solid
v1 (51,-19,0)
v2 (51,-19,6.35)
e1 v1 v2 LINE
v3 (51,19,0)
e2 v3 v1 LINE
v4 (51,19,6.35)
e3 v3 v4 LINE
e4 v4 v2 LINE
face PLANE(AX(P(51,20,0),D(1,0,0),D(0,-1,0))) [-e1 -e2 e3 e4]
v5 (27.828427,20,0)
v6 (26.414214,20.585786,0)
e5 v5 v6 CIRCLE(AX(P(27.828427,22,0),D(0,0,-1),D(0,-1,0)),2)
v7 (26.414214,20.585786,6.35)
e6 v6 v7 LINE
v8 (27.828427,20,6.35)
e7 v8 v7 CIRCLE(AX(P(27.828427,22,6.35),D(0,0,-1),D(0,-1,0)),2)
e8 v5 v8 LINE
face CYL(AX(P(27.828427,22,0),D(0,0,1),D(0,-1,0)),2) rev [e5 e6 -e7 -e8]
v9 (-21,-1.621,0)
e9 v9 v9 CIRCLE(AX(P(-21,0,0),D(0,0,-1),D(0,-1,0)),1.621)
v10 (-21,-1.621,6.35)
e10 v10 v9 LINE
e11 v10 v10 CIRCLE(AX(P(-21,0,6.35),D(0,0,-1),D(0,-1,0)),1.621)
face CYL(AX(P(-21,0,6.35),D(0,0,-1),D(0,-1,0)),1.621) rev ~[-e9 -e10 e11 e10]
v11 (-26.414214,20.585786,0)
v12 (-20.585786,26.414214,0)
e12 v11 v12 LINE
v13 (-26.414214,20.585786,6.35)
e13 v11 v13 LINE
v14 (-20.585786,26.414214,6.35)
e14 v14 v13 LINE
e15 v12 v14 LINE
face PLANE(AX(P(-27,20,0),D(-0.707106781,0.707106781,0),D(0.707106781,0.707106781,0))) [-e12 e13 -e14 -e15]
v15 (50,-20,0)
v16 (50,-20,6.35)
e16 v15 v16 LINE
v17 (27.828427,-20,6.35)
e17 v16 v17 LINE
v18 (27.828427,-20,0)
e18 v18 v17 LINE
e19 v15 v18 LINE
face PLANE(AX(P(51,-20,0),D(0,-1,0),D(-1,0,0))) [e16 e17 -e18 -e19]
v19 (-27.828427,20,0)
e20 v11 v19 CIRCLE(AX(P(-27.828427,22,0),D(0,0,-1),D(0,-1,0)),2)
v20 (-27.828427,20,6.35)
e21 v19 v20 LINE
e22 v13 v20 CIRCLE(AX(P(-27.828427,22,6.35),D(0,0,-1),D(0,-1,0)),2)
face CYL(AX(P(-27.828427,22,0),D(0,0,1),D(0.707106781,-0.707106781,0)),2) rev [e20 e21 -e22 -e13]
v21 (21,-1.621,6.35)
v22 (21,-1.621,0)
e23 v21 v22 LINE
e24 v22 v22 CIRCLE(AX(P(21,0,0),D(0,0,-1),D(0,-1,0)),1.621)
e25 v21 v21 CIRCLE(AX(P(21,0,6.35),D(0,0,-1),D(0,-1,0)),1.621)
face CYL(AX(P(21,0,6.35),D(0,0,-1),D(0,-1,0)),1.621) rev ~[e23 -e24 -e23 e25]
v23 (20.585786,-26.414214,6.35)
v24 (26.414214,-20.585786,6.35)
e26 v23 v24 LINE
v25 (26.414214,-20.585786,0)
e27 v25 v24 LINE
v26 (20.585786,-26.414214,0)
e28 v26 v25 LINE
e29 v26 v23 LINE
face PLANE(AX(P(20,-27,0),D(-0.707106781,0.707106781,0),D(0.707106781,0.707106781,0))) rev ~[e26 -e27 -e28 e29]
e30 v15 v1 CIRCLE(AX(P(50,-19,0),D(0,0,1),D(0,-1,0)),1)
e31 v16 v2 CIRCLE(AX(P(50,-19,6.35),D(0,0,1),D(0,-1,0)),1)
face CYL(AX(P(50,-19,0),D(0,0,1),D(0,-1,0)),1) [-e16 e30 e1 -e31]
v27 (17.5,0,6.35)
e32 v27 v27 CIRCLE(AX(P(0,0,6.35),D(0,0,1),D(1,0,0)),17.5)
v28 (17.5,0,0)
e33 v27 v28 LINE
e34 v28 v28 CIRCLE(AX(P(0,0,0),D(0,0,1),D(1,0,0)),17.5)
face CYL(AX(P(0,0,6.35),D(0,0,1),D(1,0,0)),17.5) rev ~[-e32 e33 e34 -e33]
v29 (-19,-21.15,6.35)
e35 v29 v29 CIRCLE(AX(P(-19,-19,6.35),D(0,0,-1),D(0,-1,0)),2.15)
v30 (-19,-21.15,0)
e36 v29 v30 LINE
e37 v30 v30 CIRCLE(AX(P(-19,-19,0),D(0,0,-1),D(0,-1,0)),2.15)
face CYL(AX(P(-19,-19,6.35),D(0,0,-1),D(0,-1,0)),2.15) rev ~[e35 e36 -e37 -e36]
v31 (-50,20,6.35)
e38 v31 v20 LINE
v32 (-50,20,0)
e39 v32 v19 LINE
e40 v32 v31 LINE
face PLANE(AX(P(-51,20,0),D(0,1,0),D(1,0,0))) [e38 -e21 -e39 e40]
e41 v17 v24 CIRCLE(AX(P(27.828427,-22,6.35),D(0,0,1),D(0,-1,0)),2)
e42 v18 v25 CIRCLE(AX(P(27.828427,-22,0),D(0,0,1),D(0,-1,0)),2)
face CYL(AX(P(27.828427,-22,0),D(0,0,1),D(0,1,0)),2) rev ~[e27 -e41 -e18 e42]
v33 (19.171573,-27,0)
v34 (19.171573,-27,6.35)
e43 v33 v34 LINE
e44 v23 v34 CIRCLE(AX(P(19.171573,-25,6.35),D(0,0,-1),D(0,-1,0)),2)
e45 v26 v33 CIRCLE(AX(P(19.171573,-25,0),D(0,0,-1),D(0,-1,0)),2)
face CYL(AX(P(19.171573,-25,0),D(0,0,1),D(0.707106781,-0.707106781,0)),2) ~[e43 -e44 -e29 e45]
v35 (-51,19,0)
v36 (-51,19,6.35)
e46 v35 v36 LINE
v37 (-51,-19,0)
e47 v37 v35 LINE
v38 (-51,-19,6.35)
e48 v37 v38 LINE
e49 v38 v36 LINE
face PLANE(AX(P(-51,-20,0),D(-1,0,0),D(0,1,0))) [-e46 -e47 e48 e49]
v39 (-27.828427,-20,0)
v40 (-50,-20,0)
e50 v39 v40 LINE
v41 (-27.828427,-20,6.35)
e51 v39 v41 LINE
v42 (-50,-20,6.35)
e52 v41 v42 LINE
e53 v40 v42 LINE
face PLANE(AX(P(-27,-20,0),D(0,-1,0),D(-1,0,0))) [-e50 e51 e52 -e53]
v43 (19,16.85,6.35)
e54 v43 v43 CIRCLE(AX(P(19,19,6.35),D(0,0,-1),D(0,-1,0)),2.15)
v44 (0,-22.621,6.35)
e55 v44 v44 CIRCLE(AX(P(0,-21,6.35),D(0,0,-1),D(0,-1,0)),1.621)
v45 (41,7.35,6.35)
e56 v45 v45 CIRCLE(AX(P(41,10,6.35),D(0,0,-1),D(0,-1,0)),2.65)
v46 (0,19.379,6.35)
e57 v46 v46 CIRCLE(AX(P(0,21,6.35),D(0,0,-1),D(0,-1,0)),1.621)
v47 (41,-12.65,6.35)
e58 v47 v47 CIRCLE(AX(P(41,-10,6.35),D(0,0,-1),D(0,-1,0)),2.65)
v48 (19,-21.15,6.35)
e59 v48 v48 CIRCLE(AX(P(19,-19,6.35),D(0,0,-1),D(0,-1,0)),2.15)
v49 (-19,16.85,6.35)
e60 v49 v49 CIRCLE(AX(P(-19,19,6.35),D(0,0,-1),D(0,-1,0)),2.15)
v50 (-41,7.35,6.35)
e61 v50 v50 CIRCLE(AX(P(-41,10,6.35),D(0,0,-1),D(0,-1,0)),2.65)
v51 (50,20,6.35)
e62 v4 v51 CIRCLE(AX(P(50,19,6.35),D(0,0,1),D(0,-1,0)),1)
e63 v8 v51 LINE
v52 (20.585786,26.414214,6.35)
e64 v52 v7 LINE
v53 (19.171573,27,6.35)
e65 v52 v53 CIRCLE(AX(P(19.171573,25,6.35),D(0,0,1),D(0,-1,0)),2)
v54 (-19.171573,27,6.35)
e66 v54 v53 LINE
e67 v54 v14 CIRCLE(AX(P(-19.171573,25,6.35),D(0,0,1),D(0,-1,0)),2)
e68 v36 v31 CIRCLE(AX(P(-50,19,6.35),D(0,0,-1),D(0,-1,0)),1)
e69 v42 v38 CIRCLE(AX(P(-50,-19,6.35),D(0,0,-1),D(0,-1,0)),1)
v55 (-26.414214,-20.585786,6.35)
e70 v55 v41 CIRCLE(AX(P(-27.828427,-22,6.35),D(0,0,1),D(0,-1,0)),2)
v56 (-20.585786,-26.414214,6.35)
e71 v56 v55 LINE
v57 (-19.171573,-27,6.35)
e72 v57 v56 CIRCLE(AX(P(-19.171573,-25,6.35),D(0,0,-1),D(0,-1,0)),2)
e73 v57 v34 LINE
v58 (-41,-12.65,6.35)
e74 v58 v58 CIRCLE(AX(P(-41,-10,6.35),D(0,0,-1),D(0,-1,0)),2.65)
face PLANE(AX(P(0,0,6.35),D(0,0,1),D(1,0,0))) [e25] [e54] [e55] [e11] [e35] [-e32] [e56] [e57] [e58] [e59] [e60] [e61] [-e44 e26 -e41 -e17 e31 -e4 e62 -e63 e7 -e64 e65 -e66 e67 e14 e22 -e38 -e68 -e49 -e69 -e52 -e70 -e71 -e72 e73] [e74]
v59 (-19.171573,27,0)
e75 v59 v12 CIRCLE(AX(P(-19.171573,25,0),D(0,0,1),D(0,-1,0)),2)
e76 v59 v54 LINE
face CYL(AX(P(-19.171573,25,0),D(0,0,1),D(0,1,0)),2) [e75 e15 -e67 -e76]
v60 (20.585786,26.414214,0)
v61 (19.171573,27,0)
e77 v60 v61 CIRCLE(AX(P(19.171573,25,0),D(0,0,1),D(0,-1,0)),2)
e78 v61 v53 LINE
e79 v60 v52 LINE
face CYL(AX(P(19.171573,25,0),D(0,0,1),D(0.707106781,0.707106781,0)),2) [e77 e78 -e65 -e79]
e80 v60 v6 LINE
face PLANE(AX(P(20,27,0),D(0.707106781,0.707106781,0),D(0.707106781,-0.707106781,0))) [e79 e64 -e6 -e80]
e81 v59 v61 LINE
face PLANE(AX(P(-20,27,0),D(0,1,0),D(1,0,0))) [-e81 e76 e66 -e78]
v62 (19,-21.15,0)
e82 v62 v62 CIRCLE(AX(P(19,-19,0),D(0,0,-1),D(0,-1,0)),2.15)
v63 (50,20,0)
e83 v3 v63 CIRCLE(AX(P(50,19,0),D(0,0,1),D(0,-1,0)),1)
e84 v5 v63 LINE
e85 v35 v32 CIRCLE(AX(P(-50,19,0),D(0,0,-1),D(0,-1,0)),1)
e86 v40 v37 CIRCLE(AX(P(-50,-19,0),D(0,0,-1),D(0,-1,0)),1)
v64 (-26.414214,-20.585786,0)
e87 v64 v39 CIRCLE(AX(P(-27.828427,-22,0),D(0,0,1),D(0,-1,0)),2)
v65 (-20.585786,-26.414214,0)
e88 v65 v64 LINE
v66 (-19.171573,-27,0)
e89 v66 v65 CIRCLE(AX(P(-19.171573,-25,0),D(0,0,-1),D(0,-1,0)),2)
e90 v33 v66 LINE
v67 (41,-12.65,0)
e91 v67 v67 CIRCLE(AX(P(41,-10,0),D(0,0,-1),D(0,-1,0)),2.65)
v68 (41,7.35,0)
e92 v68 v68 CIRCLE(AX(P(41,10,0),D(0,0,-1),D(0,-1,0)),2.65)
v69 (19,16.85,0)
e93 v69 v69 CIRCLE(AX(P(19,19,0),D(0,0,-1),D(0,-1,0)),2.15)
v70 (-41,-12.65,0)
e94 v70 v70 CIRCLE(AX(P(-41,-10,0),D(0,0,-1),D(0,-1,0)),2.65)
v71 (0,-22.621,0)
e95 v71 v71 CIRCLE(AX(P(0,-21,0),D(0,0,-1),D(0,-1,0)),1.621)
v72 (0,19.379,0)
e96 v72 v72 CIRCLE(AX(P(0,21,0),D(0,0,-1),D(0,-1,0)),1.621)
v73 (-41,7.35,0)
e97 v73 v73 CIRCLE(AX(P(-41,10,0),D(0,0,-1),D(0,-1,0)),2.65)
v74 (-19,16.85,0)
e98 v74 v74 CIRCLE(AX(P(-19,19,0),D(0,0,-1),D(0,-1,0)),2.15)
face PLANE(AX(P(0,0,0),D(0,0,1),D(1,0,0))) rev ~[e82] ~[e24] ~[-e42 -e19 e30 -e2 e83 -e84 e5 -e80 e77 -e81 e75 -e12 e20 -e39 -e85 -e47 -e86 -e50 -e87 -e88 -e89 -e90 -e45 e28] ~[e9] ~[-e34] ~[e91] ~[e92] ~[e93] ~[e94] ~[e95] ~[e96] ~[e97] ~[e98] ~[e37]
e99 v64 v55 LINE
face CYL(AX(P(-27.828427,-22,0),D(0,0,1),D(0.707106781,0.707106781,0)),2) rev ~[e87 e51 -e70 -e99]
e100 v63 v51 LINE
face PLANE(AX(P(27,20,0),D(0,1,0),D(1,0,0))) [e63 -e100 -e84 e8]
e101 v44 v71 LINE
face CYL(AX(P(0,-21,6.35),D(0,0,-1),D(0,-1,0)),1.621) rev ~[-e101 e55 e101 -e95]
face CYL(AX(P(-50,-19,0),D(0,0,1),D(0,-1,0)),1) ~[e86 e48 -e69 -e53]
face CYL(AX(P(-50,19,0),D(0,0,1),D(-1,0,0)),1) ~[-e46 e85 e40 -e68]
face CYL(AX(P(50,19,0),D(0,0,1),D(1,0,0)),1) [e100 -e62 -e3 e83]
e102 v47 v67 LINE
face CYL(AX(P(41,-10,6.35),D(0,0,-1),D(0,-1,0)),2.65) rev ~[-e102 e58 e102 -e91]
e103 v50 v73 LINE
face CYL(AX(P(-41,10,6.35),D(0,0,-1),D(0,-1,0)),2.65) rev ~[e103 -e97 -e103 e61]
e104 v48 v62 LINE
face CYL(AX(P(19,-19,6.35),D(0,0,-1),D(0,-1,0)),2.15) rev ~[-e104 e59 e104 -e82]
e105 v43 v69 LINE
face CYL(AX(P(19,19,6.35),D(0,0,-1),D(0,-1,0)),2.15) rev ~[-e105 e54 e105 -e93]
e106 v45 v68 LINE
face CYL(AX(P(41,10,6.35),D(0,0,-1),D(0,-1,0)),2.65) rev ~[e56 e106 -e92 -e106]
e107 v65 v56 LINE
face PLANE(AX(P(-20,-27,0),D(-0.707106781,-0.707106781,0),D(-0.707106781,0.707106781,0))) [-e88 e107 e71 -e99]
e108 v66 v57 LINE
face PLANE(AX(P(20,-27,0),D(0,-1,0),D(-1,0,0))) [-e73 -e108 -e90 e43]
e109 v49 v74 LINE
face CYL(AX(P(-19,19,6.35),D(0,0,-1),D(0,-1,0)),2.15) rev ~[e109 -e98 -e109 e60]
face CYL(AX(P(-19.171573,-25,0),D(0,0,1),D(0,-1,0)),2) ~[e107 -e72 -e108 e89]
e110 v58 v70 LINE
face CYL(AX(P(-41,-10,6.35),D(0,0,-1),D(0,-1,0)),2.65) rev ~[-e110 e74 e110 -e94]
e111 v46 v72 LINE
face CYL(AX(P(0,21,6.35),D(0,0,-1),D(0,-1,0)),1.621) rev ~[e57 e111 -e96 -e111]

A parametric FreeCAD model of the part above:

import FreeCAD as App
import Part
import Sketcher
from FreeCAD import Vector
Q = App.Units.Quantity


def edges_at(feature, points):
    """Names of the edges that pass closest to the given points."""
    edges = feature.Shape.Edges
    near = lambda p: min(range(len(edges)), key=lambda i: edges[i].distToShape(Part.Vertex(*p))[0])
    return sorted({f"Edge{near(p) + 1}" for p in points})


def add_polygon(sketch, points):
    """Adds a closed chain of lines whose ends are joined by coincident constraints."""
    first, n = sketch.GeometryCount, len(points)
    for a, b in zip(points, points[1:] + points[:1]):
        sketch.addGeometry(Part.LineSegment(App.Vector(*a, 0), App.Vector(*b, 0)), False)
    for i in range(n):
        sketch.addConstraint(Sketcher.Constraint("Coincident", first + i, 2, first + (i + 1) % n, 1))

doc = App.newDocument("Part")
body = doc.addObject("PartDesign::Body", "Body")

# Sketch on XY plane
sketch1 = body.newObject("Sketcher::SketchObject", "Sketch")
sketch1.AttachmentSupport = (doc.getObject("XY_Plane"), [""])
sketch1.MapMode = "FlatFace"
add_polygon(sketch1, [(27, -20), (51, -20), (51, 20), (27, 20), (20, 27), (-20, 27), (-27, 20), (-51, 20), (-51, -20), (-27, -20), (-20, -27), (20, -27)])  # lines 0-11
sketch1.addConstraint([
    Sketcher.Constraint("Horizontal", 0),
    Sketcher.Constraint("Vertical", 1),
    Sketcher.Constraint("Horizontal", 2),
    Sketcher.Constraint("Horizontal", 4),
    Sketcher.Constraint("Horizontal", 6),
    Sketcher.Constraint("Vertical", 7),
    Sketcher.Constraint("Horizontal", 8),
    Sketcher.Constraint("Horizontal", 10),
    Sketcher.Constraint("Symmetric", 0, 2, 6, 2, -1, 1),
    Sketcher.Constraint("Symmetric", 2, 2, 8, 2, -1, 1),
    Sketcher.Constraint("Symmetric", 3, 2, 9, 2, -1, 1),
    Sketcher.Constraint("Symmetric", 2, 2, 5, 2, -2),
    Sketcher.Constraint("Perpendicular", 3, 5),
    Sketcher.Constraint("Perpendicular", 9, 11),
    Sketcher.Constraint("Vertical", 4, 2, 9, 2),
    Sketcher.Constraint("Vertical", 3, 2, 10, 2),
    Sketcher.Constraint("Equal", 10, 1),
    Sketcher.Constraint("DistanceX", 4, 2, 4, 1, Q("40 mm")),
    Sketcher.Constraint("DistanceX", 3, 2, 2, 2, Q("7 mm")),
    Sketcher.Constraint("DistanceX", 6, 2, 1, 2, Q("102 mm")),
])
pad1 = body.newObject("PartDesign::Pad", "Pad")
pad1.Profile = sketch1
pad1.Length = 6.35
doc.recompute()

fillet = body.newObject("PartDesign::Fillet", "Fillet")
fillet.Base = (pad1, edges_at(pad1, [
    (-51, 20, 3.175),
    (-51, -20, 3.175),
    (51, 20, 3.175),
    (51, -20, 3.175),
]))
fillet.Radius = 1
doc.recompute()

fillet2 = body.newObject("PartDesign::Fillet", "Fillet001")
fillet2.Base = (fillet, edges_at(fillet, [
    (-20, -27, 3.175),
    (-20, 27, 3.175),
    (20, 27, 3.175),
    (20, -27, 3.175),
    (-27, -20, 3.175),
    (-27, 20, 3.175),
    (27, -20, 3.175),
    (27, 20, 3.175),
]))
fillet2.Radius = 2

# Sketch on XY plane
sketch2 = body.newObject("Sketcher::SketchObject", "Sketch001")
sketch2.AttachmentSupport = (doc.getObject("XY_Plane"), [""])
sketch2.MapMode = "FlatFace"
sketch2.AttachmentOffset = App.Placement(Vector(0, 0, 6.35), App.Rotation())
sketch2.addGeometry(Part.Circle(Vector(0, 0, 0), Vector(0, 0, 1), 18), False)
sketch2.addConstraint([
    Sketcher.Constraint("Coincident", 0, 3, -1, 1),
    Sketcher.Constraint("Diameter", 0, Q("35 mm")),
])
pocket1 = body.newObject("PartDesign::Pocket", "Pocket")
pocket1.Profile = sketch2
pocket1.Type = "ThroughAll"

# Sketch on XY plane
sketch3 = body.newObject("Sketcher::SketchObject", "Sketch002")
sketch3.AttachmentSupport = (doc.getObject("XY_Plane"), [""])
sketch3.MapMode = "FlatFace"
sketch3.AttachmentOffset = App.Placement(Vector(0, 0, 6.35), App.Rotation())
sketch3.addGeometry([
    Part.Circle(Vector(0, 21, 0), Vector(0, 0, 1), 1.6),
    Part.Circle(Vector(21, 0, 0), Vector(0, 0, 1), 1.6),
    Part.Circle(Vector(0, -21, 0), Vector(0, 0, 1), 1.6),
    Part.Circle(Vector(-21, 0, 0), Vector(0, 0, 1), 1.6),
], False)
sketch3.addConstraint([
    Sketcher.Constraint("Equal", 0, 1),
    Sketcher.Constraint("Equal", 1, 2),
    Sketcher.Constraint("Equal", 2, 3),
    Sketcher.Constraint("Symmetric", 0, 3, 2, 3, -1, 1),
    Sketcher.Constraint("Symmetric", 1, 3, 3, 3, -1, 1),
    Sketcher.Constraint("PointOnObject", 0, 3, -2),
    Sketcher.Constraint("PointOnObject", 1, 3, -1),
    Sketcher.Constraint("Diameter", 0, Q("3.242 mm")),
    Sketcher.Constraint("DistanceY", -1, 1, 0, 3, Q("21 mm")),
    Sketcher.Constraint("DistanceX", -1, 1, 1, 3, Q("21 mm")),
])
doc.recompute()
hole = body.newObject("PartDesign::Hole", "Hole")
hole.Profile = sketch3
hole.ThreadType = "None"
hole.Diameter = 3.242
hole.DepthType = "ThroughAll"

# Sketch on XY plane
sketch4 = body.newObject("Sketcher::SketchObject", "Sketch003")
sketch4.AttachmentSupport = (doc.getObject("XY_Plane"), [""])
sketch4.MapMode = "FlatFace"
sketch4.AttachmentOffset = App.Placement(Vector(0, 0, 6.35), App.Rotation())
sketch4.addGeometry([
    Part.Circle(Vector(-41, 10, 0), Vector(0, 0, 1), 2.6),
    Part.Circle(Vector(-41, -10, 0), Vector(0, 0, 1), 2.6),
    Part.Circle(Vector(41, 10, 0), Vector(0, 0, 1), 2.6),
    Part.Circle(Vector(41, -10, 0), Vector(0, 0, 1), 2.6),
], False)
sketch4.addConstraint([
    Sketcher.Constraint("Equal", 0, 1),
    Sketcher.Constraint("Equal", 1, 2),
    Sketcher.Constraint("Equal", 2, 3),
    Sketcher.Constraint("Symmetric", 1, 3, 2, 3, -1, 1),
    Sketcher.Constraint("Symmetric", 0, 3, 3, 3, -1, 1),
    Sketcher.Constraint("Symmetric", 0, 3, 2, 3, -2),
    Sketcher.Constraint("Diameter", 0, Q("5.3 mm")),
    Sketcher.Constraint("DistanceX", 0, 3, -1, 1, Q("41 mm")),
    Sketcher.Constraint("DistanceY", -1, 1, 0, 3, Q("10 mm")),
])
doc.recompute()
hole2 = body.newObject("PartDesign::Hole", "Hole001")
hole2.Profile = sketch4
hole2.ThreadType = "None"
hole2.Diameter = 5.3
hole2.DepthType = "ThroughAll"

# Sketch on XY plane
sketch5 = body.newObject("Sketcher::SketchObject", "Sketch004")
sketch5.AttachmentSupport = (doc.getObject("XY_Plane"), [""])
sketch5.MapMode = "FlatFace"
sketch5.AttachmentOffset = App.Placement(Vector(0, 0, 6.35), App.Rotation())
sketch5.addGeometry([
    Part.Circle(Vector(-19, 19, 0), Vector(0, 0, 1), 2.1),
    Part.Circle(Vector(19, 19, 0), Vector(0, 0, 1), 2.1),
    Part.Circle(Vector(19, -19, 0), Vector(0, 0, 1), 2.1),
    Part.Circle(Vector(-19, -19, 0), Vector(0, 0, 1), 2.1),
], False)
sketch5.addConstraint([
    Sketcher.Constraint("Equal", 0, 1),
    Sketcher.Constraint("Equal", 1, 2),
    Sketcher.Constraint("Equal", 2, 3),
    Sketcher.Constraint("Symmetric", 0, 3, 2, 3, -1, 1),
    Sketcher.Constraint("Symmetric", 1, 3, 3, 3, -1, 1),
    Sketcher.Constraint("Symmetric", 0, 3, 1, 3, -2),
    Sketcher.Constraint("Diameter", 0, Q("4.3 mm")),
    Sketcher.Constraint("DistanceX", 0, 3, -1, 1, Q("19 mm")),
    Sketcher.Constraint("DistanceY", -1, 1, 0, 3, Q("19 mm")),
])
doc.recompute()
hole3 = body.newObject("PartDesign::Hole", "Hole002")
hole3.Profile = sketch5
hole3.ThreadType = "None"
hole3.Diameter = 4.3
hole3.DepthType = "ThroughAll"

doc.recompute()
